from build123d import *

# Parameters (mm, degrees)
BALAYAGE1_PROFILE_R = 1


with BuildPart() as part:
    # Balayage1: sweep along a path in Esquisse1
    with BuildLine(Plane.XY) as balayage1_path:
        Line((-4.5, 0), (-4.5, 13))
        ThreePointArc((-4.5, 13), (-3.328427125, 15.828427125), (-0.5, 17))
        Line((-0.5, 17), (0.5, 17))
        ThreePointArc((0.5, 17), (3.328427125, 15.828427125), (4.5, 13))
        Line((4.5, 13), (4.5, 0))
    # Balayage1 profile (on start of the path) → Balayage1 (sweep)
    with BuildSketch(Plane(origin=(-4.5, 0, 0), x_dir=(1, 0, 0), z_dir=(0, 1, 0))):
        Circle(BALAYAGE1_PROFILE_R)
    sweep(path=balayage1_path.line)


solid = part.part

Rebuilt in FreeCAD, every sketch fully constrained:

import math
import FreeCAD as App
import Part
import Sketcher

V = App.Vector

doc = App.newDocument("Part")
body = doc.addObject("PartDesign::Body", "Body")

# Sketch on XZ plane
sketch1 = body.newObject("Sketcher::SketchObject", "Sketch")
sketch1.AttachmentSupport = (doc.getObject("XZ_Plane"), [""])
sketch1.MapMode = "FlatFace"
sketch1.addGeometry(Part.Circle(V(-4.5, 0, 0), V(0, 0, 1), 1), False)
sketch1.addConstraint([
    Sketcher.Constraint("PointOnObject", 0, 3, -1),
    Sketcher.Constraint("Diameter", 0, 2.0),
    Sketcher.Constraint("DistanceX", 0, 3, -1, 1, 4.5),
])

# Sketch on XY plane
sketch2 = body.newObject("Sketcher::SketchObject", "Sketch001")
sketch2.AttachmentSupport = (doc.getObject("XY_Plane"), [""])
sketch2.MapMode = "FlatFace"
sketch2.addGeometry([
    Part.LineSegment(V(-4.5, 0, 0), V(-4.5, 13, 0)),  # 0
    Part.ArcOfCircle(Part.Circle(V(-0.5, 13, 0), V(0, 0, 1), 4), math.radians(90), math.radians(180)),  # 1
    Part.LineSegment(V(-0.5, 17, 0), V(0.5, 17, 0)),  # 2
    Part.ArcOfCircle(Part.Circle(V(0.5, 13, 0), V(0, 0, 1), 4), math.radians(0), math.radians(90)),  # 3
    Part.LineSegment(V(4.5, 13, 0), V(4.5, 0, 0)),  # 4
], False)
sketch2.addConstraint([
    Sketcher.Constraint("Tangent", 0, 2, 1, 2),
    Sketcher.Constraint("Tangent", 1, 1, 2, 1),
    Sketcher.Constraint("Tangent", 2, 2, 3, 2),
    Sketcher.Constraint("Tangent", 3, 1, 4, 1),
    Sketcher.Constraint("Vertical", 0),
    Sketcher.Constraint("Horizontal", 2),
    Sketcher.Constraint("Vertical", 4),
    Sketcher.Constraint("Equal", 1, 3),
    Sketcher.Constraint("Symmetric", 0, 1, 4, 2, -1, 1),
    Sketcher.Constraint("PointOnObject", 0, 1, -1),
    Sketcher.Constraint("Radius", 1, 4.0),
    Sketcher.Constraint("DistanceX", 2, 1, 2, 2, 1.0),
    Sketcher.Constraint("DistanceY", 0, 1, 0, 2, 13.0),
])
doc.recompute()

additivepipe = body.newObject("PartDesign::AdditivePipe", "AdditivePipe")
additivepipe.Profile = sketch1
additivepipe.Spine = (sketch2, ["Edge1", "Edge2", "Edge3", "Edge4", "Edge5"])

doc.recompute()
